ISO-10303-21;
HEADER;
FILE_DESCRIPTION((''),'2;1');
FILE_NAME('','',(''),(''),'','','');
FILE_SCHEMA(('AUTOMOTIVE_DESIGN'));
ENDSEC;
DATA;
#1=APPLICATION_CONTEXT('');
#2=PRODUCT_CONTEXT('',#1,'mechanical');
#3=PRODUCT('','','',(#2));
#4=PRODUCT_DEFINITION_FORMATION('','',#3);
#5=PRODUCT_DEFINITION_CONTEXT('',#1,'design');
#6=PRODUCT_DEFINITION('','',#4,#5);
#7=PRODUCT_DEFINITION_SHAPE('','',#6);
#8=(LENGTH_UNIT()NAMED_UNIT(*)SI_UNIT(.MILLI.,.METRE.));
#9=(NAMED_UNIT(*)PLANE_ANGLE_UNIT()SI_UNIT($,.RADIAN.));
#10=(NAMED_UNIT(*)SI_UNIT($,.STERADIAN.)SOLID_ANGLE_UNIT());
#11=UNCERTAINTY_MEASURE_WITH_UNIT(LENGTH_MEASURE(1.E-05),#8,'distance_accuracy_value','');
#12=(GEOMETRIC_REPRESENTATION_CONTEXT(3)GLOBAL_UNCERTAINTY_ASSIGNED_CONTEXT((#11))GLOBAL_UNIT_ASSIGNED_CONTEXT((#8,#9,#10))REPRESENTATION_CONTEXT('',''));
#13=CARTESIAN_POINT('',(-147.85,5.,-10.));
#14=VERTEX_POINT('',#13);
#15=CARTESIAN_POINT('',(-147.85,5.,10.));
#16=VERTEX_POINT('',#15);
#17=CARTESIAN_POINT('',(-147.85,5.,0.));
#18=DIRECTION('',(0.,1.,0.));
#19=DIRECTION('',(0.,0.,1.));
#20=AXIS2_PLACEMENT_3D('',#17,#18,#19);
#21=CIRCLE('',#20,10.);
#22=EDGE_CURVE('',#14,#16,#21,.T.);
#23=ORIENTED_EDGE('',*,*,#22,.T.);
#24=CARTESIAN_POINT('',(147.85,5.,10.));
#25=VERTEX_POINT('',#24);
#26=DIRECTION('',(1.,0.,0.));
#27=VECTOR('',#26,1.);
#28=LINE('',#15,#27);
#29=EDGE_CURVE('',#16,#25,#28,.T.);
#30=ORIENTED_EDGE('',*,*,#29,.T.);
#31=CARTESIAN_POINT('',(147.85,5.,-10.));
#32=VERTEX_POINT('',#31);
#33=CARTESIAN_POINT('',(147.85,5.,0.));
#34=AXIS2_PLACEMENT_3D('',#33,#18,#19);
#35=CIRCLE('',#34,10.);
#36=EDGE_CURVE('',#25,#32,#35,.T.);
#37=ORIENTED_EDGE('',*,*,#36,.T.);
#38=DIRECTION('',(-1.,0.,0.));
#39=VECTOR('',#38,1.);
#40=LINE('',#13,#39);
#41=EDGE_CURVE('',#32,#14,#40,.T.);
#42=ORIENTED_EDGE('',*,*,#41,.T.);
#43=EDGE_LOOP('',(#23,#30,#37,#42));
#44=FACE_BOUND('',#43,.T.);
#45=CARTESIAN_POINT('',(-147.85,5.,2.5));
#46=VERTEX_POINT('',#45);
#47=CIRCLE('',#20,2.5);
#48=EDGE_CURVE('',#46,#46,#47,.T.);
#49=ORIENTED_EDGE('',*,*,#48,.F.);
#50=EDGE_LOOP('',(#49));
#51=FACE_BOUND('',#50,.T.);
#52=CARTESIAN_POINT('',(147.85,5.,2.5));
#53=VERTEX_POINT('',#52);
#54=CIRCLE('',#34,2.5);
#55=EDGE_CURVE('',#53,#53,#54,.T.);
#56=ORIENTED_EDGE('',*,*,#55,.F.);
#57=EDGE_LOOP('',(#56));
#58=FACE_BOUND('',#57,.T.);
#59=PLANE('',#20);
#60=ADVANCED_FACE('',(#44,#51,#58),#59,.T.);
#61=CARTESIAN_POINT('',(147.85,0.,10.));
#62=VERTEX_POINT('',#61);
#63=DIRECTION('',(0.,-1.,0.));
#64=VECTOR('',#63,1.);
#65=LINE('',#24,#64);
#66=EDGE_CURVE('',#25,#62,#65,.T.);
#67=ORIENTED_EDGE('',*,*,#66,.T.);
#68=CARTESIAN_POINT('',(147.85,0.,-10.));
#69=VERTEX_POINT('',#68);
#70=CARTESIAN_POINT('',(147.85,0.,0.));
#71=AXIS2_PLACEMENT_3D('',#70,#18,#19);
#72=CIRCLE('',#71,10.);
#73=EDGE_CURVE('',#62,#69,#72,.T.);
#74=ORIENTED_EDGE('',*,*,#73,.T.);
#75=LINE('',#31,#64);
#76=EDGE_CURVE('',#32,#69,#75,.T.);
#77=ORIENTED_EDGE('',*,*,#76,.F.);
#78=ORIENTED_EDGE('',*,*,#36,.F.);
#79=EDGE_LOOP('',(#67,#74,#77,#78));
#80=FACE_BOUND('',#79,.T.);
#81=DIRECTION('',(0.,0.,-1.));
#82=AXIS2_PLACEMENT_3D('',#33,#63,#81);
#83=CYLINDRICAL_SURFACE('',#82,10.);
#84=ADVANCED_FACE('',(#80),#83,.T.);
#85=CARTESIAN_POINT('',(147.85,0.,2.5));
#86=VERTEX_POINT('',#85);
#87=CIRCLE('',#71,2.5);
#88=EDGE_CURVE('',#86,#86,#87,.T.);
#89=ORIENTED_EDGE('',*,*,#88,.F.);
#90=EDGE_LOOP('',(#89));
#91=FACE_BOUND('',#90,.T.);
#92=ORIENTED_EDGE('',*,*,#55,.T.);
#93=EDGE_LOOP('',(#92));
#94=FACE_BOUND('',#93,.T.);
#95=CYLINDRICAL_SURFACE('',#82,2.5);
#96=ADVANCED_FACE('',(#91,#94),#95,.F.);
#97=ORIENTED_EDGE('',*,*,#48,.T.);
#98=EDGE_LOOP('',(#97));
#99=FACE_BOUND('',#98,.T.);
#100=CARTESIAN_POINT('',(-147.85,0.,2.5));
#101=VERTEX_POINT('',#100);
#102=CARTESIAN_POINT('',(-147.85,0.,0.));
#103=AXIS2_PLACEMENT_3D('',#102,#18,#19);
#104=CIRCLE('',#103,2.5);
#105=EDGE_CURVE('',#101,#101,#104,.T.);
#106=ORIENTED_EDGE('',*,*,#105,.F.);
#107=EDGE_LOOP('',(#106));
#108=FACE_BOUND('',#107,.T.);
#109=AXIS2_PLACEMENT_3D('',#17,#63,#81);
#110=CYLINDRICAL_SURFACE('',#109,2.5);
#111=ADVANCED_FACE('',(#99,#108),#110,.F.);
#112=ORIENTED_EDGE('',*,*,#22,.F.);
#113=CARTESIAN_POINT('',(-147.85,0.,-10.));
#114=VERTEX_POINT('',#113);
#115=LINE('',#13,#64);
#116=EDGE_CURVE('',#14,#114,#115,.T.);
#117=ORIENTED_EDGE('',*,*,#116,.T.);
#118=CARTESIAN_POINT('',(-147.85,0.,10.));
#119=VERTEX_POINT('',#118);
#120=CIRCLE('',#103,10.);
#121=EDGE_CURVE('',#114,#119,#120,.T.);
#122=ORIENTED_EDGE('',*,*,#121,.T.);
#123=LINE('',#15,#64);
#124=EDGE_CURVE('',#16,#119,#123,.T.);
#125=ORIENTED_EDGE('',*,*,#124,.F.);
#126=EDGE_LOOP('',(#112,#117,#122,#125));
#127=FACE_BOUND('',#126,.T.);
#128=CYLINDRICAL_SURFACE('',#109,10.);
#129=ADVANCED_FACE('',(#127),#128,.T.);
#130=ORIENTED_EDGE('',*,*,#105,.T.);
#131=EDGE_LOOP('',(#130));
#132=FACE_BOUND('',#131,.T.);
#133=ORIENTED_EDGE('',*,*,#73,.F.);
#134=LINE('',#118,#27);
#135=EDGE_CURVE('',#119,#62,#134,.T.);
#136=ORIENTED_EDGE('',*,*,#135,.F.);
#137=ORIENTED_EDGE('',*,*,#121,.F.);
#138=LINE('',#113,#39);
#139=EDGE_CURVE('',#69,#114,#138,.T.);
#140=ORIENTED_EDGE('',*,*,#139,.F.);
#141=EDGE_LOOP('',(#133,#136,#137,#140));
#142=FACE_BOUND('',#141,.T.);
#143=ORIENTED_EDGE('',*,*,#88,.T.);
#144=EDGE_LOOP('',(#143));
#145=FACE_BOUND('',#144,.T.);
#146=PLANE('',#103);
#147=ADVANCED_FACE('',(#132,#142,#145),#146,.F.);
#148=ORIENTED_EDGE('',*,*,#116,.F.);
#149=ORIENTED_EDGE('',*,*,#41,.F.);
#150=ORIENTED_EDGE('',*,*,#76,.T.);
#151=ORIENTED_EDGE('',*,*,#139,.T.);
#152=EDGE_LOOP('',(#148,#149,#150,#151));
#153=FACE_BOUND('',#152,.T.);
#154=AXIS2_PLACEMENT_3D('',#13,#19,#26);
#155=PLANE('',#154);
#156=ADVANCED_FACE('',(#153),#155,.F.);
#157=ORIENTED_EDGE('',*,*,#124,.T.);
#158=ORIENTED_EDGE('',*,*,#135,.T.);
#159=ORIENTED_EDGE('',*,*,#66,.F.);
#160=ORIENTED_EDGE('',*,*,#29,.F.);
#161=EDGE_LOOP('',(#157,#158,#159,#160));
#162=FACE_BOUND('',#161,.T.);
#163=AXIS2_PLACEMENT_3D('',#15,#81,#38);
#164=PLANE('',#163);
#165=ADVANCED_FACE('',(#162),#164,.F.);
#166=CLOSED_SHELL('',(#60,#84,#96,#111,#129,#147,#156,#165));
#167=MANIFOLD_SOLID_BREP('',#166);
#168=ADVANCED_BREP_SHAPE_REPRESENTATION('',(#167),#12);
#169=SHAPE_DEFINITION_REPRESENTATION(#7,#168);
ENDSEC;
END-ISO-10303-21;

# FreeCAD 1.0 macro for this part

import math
import FreeCAD as App
import Part
import Sketcher

V = App.Vector
Q = App.Units.Quantity

doc = App.newDocument("Part")
params = doc.addObject("Spreadsheet::Sheet", "Params")
for row, (alias, value) in enumerate([
    ("sketch1_diameter", "5 mm"),
    ("sketch1_radius", "10 mm"),
    ("sketch1_width", "295.7 mm"),
    ("pad1_length", "5 mm"),
], start=1):
    params.set(f"A{row}", alias)
    params.set(f"B{row}", "=" + value)
    params.setAlias(f"B{row}", alias)

body = doc.addObject("PartDesign::Body", "Body")

sketch1 = doc.addObject("Sketcher::SketchObject", "Sketch")
body.addObject(sketch1)
sketch1.AttachmentSupport = (doc.XZ_Plane, [""])
sketch1.MapMode = "FlatFace"
sketch1.addGeometry([
    Part.LineSegment(V(147.8, -10, 0), V(-147.8, -10, 0)),
    Part.ArcOfCircle(Part.Circle(V(-147.8, 0, 0), V(0, 0, 1), 10), math.radians(90), math.radians(270)),
    Part.LineSegment(V(-147.8, 10, 0), V(147.8, 10, 0)),
    Part.ArcOfCircle(Part.Circle(V(147.8, 0, 0), V(0, 0, 1), 10), math.radians(-90), math.radians(90)),
    Part.Circle(V(147.8, 0, 0), V(0, 0, 1), 2.5),
    Part.Circle(V(-147.8, 0, 0), V(0, 0, 1), 2.5),
], False)
sketch1.addConstraint([
    Sketcher.Constraint("Tangent", 0, 2, 1, 2),
    Sketcher.Constraint("Tangent", 1, 1, 2, 1),
    Sketcher.Constraint("Tangent", 2, 2, 3, 2),
    Sketcher.Constraint("Tangent", 3, 1, 0, 1),
    Sketcher.Constraint("Horizontal", 0),
    Sketcher.Constraint("Horizontal", 2),
    Sketcher.Constraint("Coincident", 4, 3, 3, 3),
    Sketcher.Constraint("Coincident", 5, 3, 1, 3),
    Sketcher.Constraint("Equal", 4, 5),
    Sketcher.Constraint("Symmetric", 1, 3, 3, 3, -1, 1),
    Sketcher.Constraint("Diameter", 4, Q("5 mm")),
    Sketcher.Constraint("Radius", 1, Q("10 mm")),
    Sketcher.Constraint("DistanceX", 0, 2, 0, 1, Q("295.7 mm")),
])
sketch1.setExpression("Constraints[10]", "Params.sketch1_diameter")
sketch1.setExpression("Constraints[11]", "Params.sketch1_radius")
sketch1.setExpression("Constraints[12]", "Params.sketch1_width")
pad1 = doc.addObject("PartDesign::Pad", "Pad")
body.addObject(pad1)
pad1.Profile = sketch1
pad1.setExpression("Length", "Params.pad1_length")
pad1.Reversed = True

doc.recompute()
